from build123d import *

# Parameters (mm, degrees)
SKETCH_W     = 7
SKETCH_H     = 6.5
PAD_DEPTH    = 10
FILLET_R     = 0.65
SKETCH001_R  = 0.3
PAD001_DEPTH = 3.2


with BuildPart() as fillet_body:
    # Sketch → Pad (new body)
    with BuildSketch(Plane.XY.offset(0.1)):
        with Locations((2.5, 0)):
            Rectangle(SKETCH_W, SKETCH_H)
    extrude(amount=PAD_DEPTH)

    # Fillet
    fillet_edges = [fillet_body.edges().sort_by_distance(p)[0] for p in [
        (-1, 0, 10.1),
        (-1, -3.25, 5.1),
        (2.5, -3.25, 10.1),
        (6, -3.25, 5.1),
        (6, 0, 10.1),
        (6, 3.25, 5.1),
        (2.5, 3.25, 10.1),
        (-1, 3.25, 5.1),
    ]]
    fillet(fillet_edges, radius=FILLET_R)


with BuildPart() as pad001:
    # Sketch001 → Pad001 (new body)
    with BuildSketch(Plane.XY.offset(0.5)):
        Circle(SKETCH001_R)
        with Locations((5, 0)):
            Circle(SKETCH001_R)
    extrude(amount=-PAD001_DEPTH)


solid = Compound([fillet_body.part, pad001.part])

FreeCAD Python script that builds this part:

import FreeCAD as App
import Part
import Sketcher


def edges_at(feature, points):
    """Names of the edges that pass closest to the given points."""
    edges = feature.Shape.Edges
    near = lambda p: min(range(len(edges)), key=lambda i: edges[i].distToShape(Part.Vertex(*p))[0])
    return sorted({f"Edge{near(p) + 1}" for p in points})

doc = App.newDocument("Part")
body = doc.addObject("PartDesign::Body", "Body")

sketch1 = body.newObject("Sketcher::SketchObject", "Sketch")
sketch1.AttachmentSupport = (doc.getObject("XY_Plane"), [""])
sketch1.MapMode = "FlatFace"
sketch1.AttachmentOffset = App.Placement(App.Vector(0, 0, 0.1), App.Rotation())
sketch1.addGeometry([
    Part.LineSegment(App.Vector(-1, 3, 0), App.Vector(-1, -3, 0)),
    Part.LineSegment(App.Vector(-1, -3, 0), App.Vector(6, -3, 0)),
    Part.LineSegment(App.Vector(6, -3, 0), App.Vector(6, 3, 0)),
    Part.LineSegment(App.Vector(6, 3, 0), App.Vector(-1, 3, 0)),
], False)
sketch1.addConstraint([
    Sketcher.Constraint("Coincident", 0, 2, 1, 1),
    Sketcher.Constraint("Coincident", 1, 2, 2, 1),
    Sketcher.Constraint("Coincident", 2, 2, 3, 1),
    Sketcher.Constraint("Coincident", 3, 2, 0, 1),
    Sketcher.Constraint("Vertical", 0),
    Sketcher.Constraint("Horizontal", 1),
    Sketcher.Constraint("Vertical", 2),
    Sketcher.Constraint("Horizontal", 3),
    Sketcher.Constraint("DistanceX", 1, 1, 1, 2, 7.0),
    Sketcher.Constraint("DistanceY", 0, 2, 0, 1, 6.5),
    Sketcher.Constraint("DistanceX", 0, 2, -1, 1, 1.0),
    Sketcher.Constraint("DistanceY", 0, 2, -1, 1, 3.25),
])
pad1 = body.newObject("PartDesign::Pad", "Pad")
pad1.Profile = sketch1
pad1.Length = 10
doc.recompute()

fillet = body.newObject("PartDesign::Fillet", "Fillet")
fillet.Base = (pad1, edges_at(pad1, [
    (-1, 0, 10.1),
    (-1, -3.25, 5.1),
    (2.5, -3.25, 10.1),
    (6, -3.25, 5.1),
    (6, 0, 10.1),
    (6, 3.25, 5.1),
    (2.5, 3.25, 10.1),
    (-1, 3.25, 5.1),
]))
fillet.Radius = 0.65
body2 = doc.addObject("PartDesign::Body", "Body001")
body2.AllowCompound = True

sketch2 = body2.newObject("Sketcher::SketchObject", "Sketch001")
sketch2.AttachmentSupport = (doc.getObject("XY_Plane001"), [""])
sketch2.MapMode = "FlatFace"
sketch2.AttachmentOffset = App.Placement(App.Vector(0, 0, 0.5), App.Rotation())
sketch2.addGeometry([
    Part.Circle(App.Vector(0, 0, 0), App.Vector(0, 0, 1), 0.3),
    Part.Circle(App.Vector(5, 0, 0), App.Vector(0, 0, 1), 0.3),
], False)
sketch2.addConstraint([
    Sketcher.Constraint("Coincident", 0, 3, -1, 1),
    Sketcher.Constraint("Equal", 0, 1),
    Sketcher.Constraint("PointOnObject", 1, 3, -1),
    Sketcher.Constraint("Diameter", 0, 0.6),
    Sketcher.Constraint("DistanceX", -1, 1, 1, 3, 5.0),
])
pad2 = body2.newObject("PartDesign::Pad", "Pad001")
pad2.Profile = sketch2
pad2.Length = 3.2
pad2.Reversed = True

doc.recompute()
